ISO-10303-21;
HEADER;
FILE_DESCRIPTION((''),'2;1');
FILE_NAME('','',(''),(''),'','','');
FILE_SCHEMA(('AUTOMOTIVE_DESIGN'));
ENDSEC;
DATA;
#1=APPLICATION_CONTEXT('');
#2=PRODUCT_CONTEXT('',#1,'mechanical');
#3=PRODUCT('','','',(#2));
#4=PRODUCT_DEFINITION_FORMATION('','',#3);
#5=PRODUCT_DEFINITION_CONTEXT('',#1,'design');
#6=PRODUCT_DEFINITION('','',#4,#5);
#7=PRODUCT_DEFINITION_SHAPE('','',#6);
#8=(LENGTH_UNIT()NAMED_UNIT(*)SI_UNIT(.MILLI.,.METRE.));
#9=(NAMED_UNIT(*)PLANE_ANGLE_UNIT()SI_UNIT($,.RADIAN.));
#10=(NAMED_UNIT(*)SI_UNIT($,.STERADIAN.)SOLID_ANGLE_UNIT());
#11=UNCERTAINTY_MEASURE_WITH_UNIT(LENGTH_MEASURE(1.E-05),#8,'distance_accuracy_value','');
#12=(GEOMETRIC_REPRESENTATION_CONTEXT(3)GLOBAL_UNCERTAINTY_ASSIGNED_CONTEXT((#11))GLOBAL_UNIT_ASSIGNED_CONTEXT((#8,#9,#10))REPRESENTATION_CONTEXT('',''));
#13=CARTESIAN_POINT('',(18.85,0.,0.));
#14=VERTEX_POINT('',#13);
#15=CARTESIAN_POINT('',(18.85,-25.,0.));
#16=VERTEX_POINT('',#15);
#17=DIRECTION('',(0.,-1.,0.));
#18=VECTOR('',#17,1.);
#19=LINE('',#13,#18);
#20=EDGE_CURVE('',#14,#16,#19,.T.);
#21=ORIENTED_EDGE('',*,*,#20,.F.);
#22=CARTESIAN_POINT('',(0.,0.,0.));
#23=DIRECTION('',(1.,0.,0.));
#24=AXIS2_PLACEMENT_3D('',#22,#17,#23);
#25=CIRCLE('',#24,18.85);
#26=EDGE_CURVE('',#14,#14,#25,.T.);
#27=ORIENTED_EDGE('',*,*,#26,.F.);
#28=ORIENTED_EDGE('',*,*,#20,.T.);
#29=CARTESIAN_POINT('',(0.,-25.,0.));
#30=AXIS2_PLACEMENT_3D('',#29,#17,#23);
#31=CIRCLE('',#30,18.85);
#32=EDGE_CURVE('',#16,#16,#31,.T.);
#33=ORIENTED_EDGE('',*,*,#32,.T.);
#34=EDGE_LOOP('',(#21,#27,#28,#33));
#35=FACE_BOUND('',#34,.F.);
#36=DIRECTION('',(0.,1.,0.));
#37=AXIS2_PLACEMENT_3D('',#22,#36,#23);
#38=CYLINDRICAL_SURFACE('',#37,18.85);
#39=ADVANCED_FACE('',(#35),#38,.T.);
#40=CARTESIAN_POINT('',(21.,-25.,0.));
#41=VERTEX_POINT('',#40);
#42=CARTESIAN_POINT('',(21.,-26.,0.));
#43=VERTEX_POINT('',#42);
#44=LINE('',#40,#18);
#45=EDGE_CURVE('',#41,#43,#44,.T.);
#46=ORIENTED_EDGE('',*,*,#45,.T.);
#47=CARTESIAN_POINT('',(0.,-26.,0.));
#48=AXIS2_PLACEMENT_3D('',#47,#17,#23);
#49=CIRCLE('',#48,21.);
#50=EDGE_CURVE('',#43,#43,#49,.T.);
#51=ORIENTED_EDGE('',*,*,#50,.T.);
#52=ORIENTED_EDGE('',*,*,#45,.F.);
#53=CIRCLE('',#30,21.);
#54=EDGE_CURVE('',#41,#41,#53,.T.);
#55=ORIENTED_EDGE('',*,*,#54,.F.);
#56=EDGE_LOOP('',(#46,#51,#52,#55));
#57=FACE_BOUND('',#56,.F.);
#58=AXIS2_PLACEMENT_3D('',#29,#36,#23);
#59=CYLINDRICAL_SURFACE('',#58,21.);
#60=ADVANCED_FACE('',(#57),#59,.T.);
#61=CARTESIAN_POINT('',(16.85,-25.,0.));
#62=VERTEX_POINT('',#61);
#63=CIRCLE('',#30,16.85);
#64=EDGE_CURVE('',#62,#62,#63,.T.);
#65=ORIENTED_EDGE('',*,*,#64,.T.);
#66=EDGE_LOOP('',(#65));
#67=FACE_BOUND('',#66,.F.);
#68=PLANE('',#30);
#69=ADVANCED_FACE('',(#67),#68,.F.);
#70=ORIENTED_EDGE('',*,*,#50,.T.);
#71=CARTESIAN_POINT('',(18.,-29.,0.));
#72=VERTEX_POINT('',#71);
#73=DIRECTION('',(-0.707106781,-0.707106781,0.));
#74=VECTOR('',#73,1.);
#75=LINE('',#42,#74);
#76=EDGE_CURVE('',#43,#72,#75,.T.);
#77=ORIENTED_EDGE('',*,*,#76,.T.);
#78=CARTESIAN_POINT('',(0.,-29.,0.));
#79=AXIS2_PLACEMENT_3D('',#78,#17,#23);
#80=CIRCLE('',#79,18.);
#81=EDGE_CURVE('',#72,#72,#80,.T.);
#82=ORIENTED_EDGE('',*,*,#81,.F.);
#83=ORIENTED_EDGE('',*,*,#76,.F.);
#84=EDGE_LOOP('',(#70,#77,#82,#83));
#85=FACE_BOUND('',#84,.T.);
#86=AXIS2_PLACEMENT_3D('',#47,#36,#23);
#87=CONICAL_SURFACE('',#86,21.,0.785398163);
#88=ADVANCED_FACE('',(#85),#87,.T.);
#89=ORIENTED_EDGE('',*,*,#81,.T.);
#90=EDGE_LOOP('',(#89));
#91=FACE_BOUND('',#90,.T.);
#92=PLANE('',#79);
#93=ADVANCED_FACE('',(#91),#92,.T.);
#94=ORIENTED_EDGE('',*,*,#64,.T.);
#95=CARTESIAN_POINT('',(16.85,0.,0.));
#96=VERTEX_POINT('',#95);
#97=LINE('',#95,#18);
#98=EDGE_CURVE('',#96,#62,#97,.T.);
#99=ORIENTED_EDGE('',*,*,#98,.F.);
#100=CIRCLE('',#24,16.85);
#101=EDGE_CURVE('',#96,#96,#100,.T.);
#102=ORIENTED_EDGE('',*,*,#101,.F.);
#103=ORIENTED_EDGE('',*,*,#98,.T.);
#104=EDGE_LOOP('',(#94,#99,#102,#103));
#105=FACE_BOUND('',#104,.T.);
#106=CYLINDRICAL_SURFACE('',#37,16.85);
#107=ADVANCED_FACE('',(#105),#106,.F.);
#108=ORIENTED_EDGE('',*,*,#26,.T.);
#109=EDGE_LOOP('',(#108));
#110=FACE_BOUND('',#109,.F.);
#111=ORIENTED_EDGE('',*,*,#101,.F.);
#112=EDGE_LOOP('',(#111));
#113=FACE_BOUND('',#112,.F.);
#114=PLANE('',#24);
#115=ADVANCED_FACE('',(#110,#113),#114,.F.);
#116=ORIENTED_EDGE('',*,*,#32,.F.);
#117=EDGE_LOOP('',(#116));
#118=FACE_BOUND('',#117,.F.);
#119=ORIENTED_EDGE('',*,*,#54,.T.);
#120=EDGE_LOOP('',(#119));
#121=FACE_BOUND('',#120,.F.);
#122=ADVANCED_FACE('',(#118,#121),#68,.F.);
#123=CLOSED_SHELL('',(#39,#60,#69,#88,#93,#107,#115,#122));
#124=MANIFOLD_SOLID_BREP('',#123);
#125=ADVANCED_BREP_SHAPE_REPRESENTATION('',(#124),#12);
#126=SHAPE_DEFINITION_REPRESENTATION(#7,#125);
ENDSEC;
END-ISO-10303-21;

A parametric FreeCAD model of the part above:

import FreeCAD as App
import Part
import Sketcher


def edges_at(feature, points):
    """Names of the edges that pass closest to the given points."""
    edges = feature.Shape.Edges
    near = lambda p: min(range(len(edges)), key=lambda i: edges[i].distToShape(Part.Vertex(*p))[0])
    return sorted({f"Edge{near(p) + 1}" for p in points})

doc = App.newDocument("Part")
body = doc.addObject("PartDesign::Body", "Body")

# Sketch on XZ plane
sketch1 = doc.addObject("Sketcher::SketchObject", "Sketch")
body.addObject(sketch1)
sketch1.AttachmentSupport = (doc.XZ_Plane, [""])
sketch1.MapMode = "FlatFace"
sketch1.addGeometry(Part.Circle(App.Vector(0, 0, 0), App.Vector(0, 0, 1), 19), False)
sketch1.addGeometry(Part.Circle(App.Vector(0, 0, 0), App.Vector(0, 0, 1), 17), False)
sketch1.addConstraint(Sketcher.Constraint("Coincident", 0, 3, -1, 1))
sketch1.addConstraint(Sketcher.Constraint("Coincident", 1, 3, -1, 1))
sketch1.addConstraint(Sketcher.Constraint("Diameter", 0, 37.7))
sketch1.addConstraint(Sketcher.Constraint("Diameter", 1, 33.7))
pad1 = doc.addObject("PartDesign::Pad", "Pad")
body.addObject(pad1)
pad1.Profile = sketch1
pad1.Length = 25

# Sketch on XZ plane
sketch2 = doc.addObject("Sketcher::SketchObject", "Sketch001")
body.addObject(sketch2)
sketch2.AttachmentSupport = (doc.XZ_Plane, [""])
sketch2.MapMode = "FlatFace"
sketch2.AttachmentOffset = App.Placement(App.Vector(0, 0, 25), App.Rotation())
sketch2.addGeometry(Part.Circle(App.Vector(0, 0, 0), App.Vector(0, 0, 1), 21), False)
sketch2.addConstraint(Sketcher.Constraint("Coincident", 0, 3, -1, 1))
sketch2.addConstraint(Sketcher.Constraint("Diameter", 0, 42.0))
pad2 = doc.addObject("PartDesign::Pad", "Pad001")
body.addObject(pad2)
pad2.Profile = sketch2
pad2.Length = 4
doc.recompute()

chamfer = doc.addObject("PartDesign::Chamfer", "Chamfer")
body.addObject(chamfer)
chamfer.Base = (pad2, edges_at(pad2, [(-21, -29, 0)]))
chamfer.Size = 3

doc.recompute()
